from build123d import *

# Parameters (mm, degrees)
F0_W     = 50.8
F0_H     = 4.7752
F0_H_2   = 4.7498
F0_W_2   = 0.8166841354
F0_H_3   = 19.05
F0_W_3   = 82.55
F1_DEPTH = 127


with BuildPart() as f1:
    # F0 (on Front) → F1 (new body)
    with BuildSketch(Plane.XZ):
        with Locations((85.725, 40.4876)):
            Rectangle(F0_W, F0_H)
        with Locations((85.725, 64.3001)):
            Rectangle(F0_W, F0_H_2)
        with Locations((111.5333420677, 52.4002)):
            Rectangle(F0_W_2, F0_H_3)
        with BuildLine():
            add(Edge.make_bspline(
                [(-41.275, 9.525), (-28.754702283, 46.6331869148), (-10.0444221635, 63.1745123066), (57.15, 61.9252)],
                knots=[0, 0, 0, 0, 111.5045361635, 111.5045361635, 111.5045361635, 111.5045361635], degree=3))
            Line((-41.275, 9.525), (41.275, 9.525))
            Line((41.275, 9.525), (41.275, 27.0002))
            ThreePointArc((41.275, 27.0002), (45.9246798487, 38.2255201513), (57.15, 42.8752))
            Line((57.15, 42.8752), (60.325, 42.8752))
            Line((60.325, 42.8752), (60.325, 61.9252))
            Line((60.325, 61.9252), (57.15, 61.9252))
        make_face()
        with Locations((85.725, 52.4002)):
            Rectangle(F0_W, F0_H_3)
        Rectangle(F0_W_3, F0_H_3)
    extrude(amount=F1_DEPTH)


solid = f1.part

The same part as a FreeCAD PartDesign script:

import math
import FreeCAD as App
import Part
import Sketcher

V = App.Vector
Q = App.Units.Quantity

doc = App.newDocument("Part")
params = doc.addObject("Spreadsheet::Sheet", "Params")
for row, (alias, value) in enumerate([
    ("sketch1_width", "2 in"),
    ("sketch1_radius", "0.625 in"),
    ("sketch1_height", "0.75 in"),
    ("pad1_length", "5 in"),
], start=1):
    params.set(f"A{row}", alias)
    params.set(f"B{row}", "=" + value)
    params.setAlias(f"B{row}", alias)

body = doc.addObject("PartDesign::Body", "Body")

# Sketch on XZ plane
sketch1 = body.newObject("Sketcher::SketchObject", "Sketch")
sketch1.AttachmentSupport = (doc.getObject("XZ_Plane"), [""])
sketch1.MapMode = "FlatFace"
sketch1.addGeometry([
    Part.LineSegment(V(60.325, 42.8752, 0), V(60.325, 38.1, 0)),  # 0
    Part.LineSegment(V(60.325, 38.1, 0), V(111.125, 38.1, 0)),  # 1
    Part.LineSegment(V(111.125, 38.1, 0), V(111.125, 42.8752, 0)),  # 2
    Part.LineSegment(V(111.125, 42.8752, 0), V(111.941684, 42.8752, 0)),  # 3
    Part.LineSegment(V(111.941684, 42.8752, 0), V(111.941684, 61.9252, 0)),  # 4
    Part.LineSegment(V(111.941684, 61.9252, 0), V(111.125, 61.9252, 0)),  # 5
    Part.LineSegment(V(111.125, 61.9252, 0), V(111.125, 66.675, 0)),  # 6
    Part.LineSegment(V(111.125, 66.675, 0), V(60.325, 66.675, 0)),  # 7
    Part.LineSegment(V(60.325, 66.675, 0), V(60.325, 61.9252, 0)),  # 8
    Part.LineSegment(V(60.325, 61.9252, 0), V(57.15, 61.9252, 0)),  # 9
    Part.BSplineCurve([V(-41.275, 9.525, 0), V(-28.754702, 46.633187, 0), V(-10.044422, 63.174512, 0), V(57.15, 61.9252, 0)], [4, 4], [0, 111.504536164], False, 3, [1, 1, 1, 1], False),  # 10
    Part.LineSegment(V(-41.275, 9.525, 0), V(-41.275, -9.525, 0)),  # 11
    Part.LineSegment(V(-41.275, -9.525, 0), V(41.275, -9.525, 0)),  # 12
    Part.LineSegment(V(41.275, -9.525, 0), V(41.275, 27.0002, 0)),  # 13
    Part.ArcOfCircle(Part.Circle(V(57.15, 27.0002, 0), V(0, 0, 1), 15.875), math.radians(90), math.radians(180)),  # 14
    Part.LineSegment(V(57.15, 42.8752, 0), V(60.325, 42.8752, 0)),  # 15
], False)
sketch1.addConstraint([
    Sketcher.Constraint("Block", 10),
    Sketcher.Constraint("Coincident", 0, 2, 1, 1),
    Sketcher.Constraint("Coincident", 1, 2, 2, 1),
    Sketcher.Constraint("Coincident", 2, 2, 3, 1),
    Sketcher.Constraint("Coincident", 3, 2, 4, 1),
    Sketcher.Constraint("Coincident", 4, 2, 5, 1),
    Sketcher.Constraint("Coincident", 5, 2, 6, 1),
    Sketcher.Constraint("Coincident", 6, 2, 7, 1),
    Sketcher.Constraint("Coincident", 7, 2, 8, 1),
    Sketcher.Constraint("Coincident", 8, 2, 9, 1),
    Sketcher.Constraint("Coincident", 9, 2, 10, 2),
    Sketcher.Constraint("Coincident", 10, 1, 11, 1),
    Sketcher.Constraint("Coincident", 11, 2, 12, 1),
    Sketcher.Constraint("Coincident", 12, 2, 13, 1),
    Sketcher.Constraint("Tangent", 13, 2, 14, 2),
    Sketcher.Constraint("Tangent", 14, 1, 15, 1),
    Sketcher.Constraint("Coincident", 15, 2, 0, 1),
    Sketcher.Constraint("Vertical", 0),
    Sketcher.Constraint("Horizontal", 1),
    Sketcher.Constraint("Vertical", 2),
    Sketcher.Constraint("Horizontal", 3),
    Sketcher.Constraint("Vertical", 4),
    Sketcher.Constraint("Horizontal", 5),
    Sketcher.Constraint("Vertical", 6),
    Sketcher.Constraint("Horizontal", 7),
    Sketcher.Constraint("Vertical", 8),
    Sketcher.Constraint("Horizontal", 9),
    Sketcher.Constraint("Vertical", 11),
    Sketcher.Constraint("Horizontal", 12),
    Sketcher.Constraint("Vertical", 13),
    Sketcher.Constraint("Horizontal", 15),
    Sketcher.Constraint("Horizontal", 5, 2, 8, 2),
    Sketcher.Constraint("Horizontal", 3, 2, 14, 1),
    Sketcher.Constraint("Vertical", 2, 2, 5, 2),
    Sketcher.Constraint("Vertical", 0, 2, 7, 2),
    Sketcher.Constraint("Vertical", 14, 3, 9, 2),
    Sketcher.Constraint("Equal", 4, 11),
    Sketcher.Constraint("DistanceX", 1, 1, 1, 2, Q("2 in")),
    Sketcher.Constraint("Radius", 14, Q("0.625 in")),
    Sketcher.Constraint("DistanceX", 11, 2, 0, 2, Q("4 in")),
    Sketcher.Constraint("DistanceY", 11, 2, 7, 2, Q("3 in")),
    Sketcher.Constraint("DistanceY", 4, 1, 4, 2, Q("0.75 in")),
    Sketcher.Constraint("DistanceY", -1, 1, 0, 2, Q("1.5 in")),
    Sketcher.Constraint("DistanceX", 3, 1, 3, 2, Q("0.816684 mm")),
])
sketch1.setExpression("Constraints[37]", "Params.sketch1_width")
sketch1.setExpression("Constraints[38]", "Params.sketch1_radius")
sketch1.setExpression("Constraints[41]", "Params.sketch1_height")
pad1 = body.newObject("PartDesign::Pad", "Pad")
pad1.Profile = sketch1
pad1.setExpression("Length", "Params.pad1_length")

doc.recompute()
